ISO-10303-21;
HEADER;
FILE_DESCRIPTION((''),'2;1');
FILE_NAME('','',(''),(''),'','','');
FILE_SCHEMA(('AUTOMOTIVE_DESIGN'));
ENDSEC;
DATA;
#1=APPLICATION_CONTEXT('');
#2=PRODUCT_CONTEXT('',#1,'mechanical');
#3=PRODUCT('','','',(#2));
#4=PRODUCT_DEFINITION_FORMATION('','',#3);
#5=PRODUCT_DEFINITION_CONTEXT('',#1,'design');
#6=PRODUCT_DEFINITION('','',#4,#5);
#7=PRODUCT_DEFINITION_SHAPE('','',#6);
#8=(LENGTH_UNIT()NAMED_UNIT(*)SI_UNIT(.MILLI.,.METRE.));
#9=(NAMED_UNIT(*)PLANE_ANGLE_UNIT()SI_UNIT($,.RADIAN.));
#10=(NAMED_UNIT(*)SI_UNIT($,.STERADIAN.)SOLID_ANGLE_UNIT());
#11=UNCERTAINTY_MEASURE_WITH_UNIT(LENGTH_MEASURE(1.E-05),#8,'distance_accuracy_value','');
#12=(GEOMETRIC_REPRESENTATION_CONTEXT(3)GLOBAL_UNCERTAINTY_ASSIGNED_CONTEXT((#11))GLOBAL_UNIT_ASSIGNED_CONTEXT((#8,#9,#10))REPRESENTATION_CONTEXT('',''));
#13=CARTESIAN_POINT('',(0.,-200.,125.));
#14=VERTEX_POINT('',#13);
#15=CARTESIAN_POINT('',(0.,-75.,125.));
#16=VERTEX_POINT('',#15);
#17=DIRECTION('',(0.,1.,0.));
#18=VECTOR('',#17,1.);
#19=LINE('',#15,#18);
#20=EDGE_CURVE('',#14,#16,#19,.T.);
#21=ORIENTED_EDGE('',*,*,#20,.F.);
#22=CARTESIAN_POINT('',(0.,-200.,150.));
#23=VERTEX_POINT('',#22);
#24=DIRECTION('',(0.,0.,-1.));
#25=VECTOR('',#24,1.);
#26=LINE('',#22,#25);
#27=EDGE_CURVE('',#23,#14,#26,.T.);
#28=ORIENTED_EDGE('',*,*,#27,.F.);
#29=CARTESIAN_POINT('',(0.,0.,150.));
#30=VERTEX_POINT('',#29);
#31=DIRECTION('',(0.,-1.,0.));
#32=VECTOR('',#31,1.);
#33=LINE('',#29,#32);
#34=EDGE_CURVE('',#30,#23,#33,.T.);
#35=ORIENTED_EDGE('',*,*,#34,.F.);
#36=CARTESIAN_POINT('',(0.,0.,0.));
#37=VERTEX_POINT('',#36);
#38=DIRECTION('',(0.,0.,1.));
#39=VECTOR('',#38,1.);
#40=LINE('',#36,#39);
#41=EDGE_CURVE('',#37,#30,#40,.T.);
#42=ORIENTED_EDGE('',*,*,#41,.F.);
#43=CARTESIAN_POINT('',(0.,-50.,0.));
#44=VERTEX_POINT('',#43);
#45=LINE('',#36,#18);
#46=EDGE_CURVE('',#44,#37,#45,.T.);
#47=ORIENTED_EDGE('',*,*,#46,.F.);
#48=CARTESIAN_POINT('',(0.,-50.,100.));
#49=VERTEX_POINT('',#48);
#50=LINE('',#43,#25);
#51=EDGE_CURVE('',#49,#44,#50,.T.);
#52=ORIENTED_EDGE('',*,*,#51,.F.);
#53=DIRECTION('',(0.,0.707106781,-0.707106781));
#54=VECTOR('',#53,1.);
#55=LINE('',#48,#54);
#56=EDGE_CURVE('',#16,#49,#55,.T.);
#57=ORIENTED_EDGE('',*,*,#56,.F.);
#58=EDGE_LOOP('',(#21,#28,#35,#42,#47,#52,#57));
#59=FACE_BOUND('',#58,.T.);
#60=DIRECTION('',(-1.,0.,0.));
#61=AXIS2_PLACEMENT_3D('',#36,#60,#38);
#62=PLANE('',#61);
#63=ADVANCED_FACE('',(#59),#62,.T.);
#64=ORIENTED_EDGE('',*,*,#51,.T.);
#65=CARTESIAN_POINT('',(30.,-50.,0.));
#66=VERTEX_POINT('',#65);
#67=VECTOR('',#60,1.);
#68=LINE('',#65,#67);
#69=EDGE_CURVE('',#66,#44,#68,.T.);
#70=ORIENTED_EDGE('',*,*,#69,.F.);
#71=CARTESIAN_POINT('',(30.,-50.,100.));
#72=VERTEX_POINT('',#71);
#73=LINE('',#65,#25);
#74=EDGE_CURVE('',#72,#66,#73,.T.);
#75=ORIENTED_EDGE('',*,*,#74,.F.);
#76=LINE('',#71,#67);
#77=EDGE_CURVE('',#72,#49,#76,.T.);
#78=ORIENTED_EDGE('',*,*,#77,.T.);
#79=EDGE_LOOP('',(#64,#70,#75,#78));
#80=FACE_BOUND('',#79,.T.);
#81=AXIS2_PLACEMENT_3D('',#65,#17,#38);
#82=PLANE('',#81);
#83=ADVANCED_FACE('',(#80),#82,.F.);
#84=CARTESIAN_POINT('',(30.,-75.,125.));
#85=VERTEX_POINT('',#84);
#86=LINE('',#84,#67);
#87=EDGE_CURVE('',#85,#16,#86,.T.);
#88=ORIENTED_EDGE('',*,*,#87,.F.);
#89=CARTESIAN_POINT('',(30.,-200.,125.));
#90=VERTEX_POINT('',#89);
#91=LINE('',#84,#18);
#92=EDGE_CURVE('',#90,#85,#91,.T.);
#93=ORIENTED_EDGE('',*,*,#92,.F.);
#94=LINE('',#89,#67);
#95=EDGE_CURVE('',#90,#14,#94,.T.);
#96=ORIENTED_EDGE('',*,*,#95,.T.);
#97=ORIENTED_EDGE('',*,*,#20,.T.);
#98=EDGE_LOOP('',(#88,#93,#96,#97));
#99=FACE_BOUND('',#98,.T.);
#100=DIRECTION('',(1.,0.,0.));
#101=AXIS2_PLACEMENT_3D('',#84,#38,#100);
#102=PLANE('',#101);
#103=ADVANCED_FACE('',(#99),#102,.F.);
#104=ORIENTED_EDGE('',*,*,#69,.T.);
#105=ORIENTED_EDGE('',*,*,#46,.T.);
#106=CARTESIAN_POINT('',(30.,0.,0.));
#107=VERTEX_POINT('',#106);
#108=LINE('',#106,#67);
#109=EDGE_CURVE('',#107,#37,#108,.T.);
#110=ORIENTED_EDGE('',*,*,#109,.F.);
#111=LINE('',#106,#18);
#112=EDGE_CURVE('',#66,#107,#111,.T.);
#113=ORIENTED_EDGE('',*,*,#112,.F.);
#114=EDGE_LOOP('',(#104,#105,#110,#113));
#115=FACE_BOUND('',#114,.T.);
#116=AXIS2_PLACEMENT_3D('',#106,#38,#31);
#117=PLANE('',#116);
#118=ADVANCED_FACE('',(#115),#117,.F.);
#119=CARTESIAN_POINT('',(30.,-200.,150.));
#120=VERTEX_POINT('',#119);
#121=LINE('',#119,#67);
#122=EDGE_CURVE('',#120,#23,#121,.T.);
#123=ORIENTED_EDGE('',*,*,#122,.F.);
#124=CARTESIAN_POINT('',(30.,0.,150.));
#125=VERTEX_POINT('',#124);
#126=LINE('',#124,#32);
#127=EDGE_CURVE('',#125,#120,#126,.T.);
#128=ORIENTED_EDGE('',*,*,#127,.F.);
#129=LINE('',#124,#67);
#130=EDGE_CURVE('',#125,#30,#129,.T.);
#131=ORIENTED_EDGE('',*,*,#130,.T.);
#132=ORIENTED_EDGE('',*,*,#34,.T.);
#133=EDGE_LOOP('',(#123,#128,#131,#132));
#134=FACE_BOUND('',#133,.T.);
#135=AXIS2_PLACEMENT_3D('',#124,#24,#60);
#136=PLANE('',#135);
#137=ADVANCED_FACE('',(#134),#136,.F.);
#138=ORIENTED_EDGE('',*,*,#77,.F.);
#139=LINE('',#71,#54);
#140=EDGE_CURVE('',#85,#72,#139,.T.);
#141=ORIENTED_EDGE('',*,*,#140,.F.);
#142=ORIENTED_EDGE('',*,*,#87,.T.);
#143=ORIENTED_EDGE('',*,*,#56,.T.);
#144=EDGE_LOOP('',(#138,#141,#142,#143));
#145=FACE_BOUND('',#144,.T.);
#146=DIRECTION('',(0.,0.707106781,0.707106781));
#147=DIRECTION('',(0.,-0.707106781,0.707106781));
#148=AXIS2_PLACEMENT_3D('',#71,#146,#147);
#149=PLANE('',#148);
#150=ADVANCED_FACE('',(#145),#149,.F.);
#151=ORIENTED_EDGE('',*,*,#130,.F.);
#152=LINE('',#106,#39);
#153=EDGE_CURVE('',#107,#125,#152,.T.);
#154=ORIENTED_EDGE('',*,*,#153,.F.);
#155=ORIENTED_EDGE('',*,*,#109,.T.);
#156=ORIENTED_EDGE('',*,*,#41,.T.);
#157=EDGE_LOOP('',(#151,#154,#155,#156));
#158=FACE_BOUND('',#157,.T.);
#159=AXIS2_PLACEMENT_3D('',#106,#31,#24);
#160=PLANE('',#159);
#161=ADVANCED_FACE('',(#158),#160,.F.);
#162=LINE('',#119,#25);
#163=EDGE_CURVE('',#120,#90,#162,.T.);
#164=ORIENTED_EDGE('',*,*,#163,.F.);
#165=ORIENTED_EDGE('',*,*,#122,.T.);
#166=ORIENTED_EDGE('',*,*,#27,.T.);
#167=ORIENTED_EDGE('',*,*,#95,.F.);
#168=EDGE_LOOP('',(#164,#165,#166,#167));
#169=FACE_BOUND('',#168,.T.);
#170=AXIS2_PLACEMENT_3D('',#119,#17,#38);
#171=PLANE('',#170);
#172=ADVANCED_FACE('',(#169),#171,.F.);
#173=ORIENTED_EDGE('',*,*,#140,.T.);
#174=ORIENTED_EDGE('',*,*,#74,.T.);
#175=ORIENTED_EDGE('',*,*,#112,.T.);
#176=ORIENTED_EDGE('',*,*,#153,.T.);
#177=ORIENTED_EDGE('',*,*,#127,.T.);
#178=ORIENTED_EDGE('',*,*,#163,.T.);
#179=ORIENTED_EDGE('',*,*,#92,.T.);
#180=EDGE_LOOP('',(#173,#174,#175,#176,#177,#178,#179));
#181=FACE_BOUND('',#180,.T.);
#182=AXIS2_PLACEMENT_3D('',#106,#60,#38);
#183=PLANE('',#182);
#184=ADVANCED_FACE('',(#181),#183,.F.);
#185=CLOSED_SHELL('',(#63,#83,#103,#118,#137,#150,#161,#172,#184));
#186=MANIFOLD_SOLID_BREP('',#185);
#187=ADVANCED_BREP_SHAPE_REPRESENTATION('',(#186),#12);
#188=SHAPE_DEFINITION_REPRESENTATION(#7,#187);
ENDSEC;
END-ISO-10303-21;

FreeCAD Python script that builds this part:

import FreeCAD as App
import Part
import Sketcher
from FreeCAD import Vector

doc = App.newDocument("Part")
body = doc.addObject("PartDesign::Body", "Body")

# Sketch on YZ plane
sketch1 = body.newObject("Sketcher::SketchObject", "Sketch")
sketch1.AttachmentSupport = (doc.getObject("YZ_Plane"), [""])
sketch1.MapMode = "FlatFace"
sketch1.addGeometry(Part.LineSegment(Vector(0, 0, 0), Vector(0, 150, 0)), False)
sketch1.addGeometry(Part.LineSegment(Vector(0, 150, 0), Vector(-200, 150, 0)), False)
sketch1.addGeometry(Part.LineSegment(Vector(-200, 150, 0), Vector(-200, 125, 0)), False)
sketch1.addGeometry(Part.LineSegment(Vector(-200, 125, 0), Vector(-75, 125, 0)), False)
sketch1.addGeometry(Part.LineSegment(Vector(-75, 125, 0), Vector(-50, 100, 0)), False)
sketch1.addGeometry(Part.LineSegment(Vector(-50, 100, 0), Vector(-50, 0, 0)), False)
sketch1.addGeometry(Part.LineSegment(Vector(-50, 0, 0), Vector(0, 0, 0)), False)
sketch1.addConstraint(Sketcher.Constraint("Coincident", 0, 2, 1, 1))
sketch1.addConstraint(Sketcher.Constraint("Coincident", 1, 2, 2, 1))
sketch1.addConstraint(Sketcher.Constraint("Coincident", 2, 2, 3, 1))
sketch1.addConstraint(Sketcher.Constraint("Coincident", 3, 2, 4, 1))
sketch1.addConstraint(Sketcher.Constraint("Coincident", 4, 2, 5, 1))
sketch1.addConstraint(Sketcher.Constraint("Coincident", 5, 2, 6, 1))
sketch1.addConstraint(Sketcher.Constraint("Coincident", 6, 2, 0, 1))
sketch1.addConstraint(Sketcher.Constraint("Vertical", 0))
sketch1.addConstraint(Sketcher.Constraint("Horizontal", 1))
sketch1.addConstraint(Sketcher.Constraint("Vertical", 2))
sketch1.addConstraint(Sketcher.Constraint("Horizontal", 3))
sketch1.addConstraint(Sketcher.Constraint("Vertical", 5))
sketch1.addConstraint(Sketcher.Constraint("Horizontal", 6))
sketch1.addConstraint(Sketcher.Constraint("Coincident", 6, 2, -1, 1))
sketch1.addConstraint(Sketcher.Constraint("DistanceX", 1, 2, 1, 1, 200.0))
sketch1.addConstraint(Sketcher.Constraint("DistanceX", 3, 1, 3, 2, 125.0))
sketch1.addConstraint(Sketcher.Constraint("DistanceX", 6, 1, 6, 2, 50.0))
sketch1.addConstraint(Sketcher.Constraint("DistanceY", 0, 1, 0, 2, 150.0))
sketch1.addConstraint(Sketcher.Constraint("DistanceY", 2, 2, 2, 1, 25.0))
sketch1.addConstraint(Sketcher.Constraint("DistanceY", 5, 2, 5, 1, 100.0))
pad1 = body.newObject("PartDesign::Pad", "Pad")
pad1.Profile = sketch1
pad1.Length = 30

doc.recompute()
